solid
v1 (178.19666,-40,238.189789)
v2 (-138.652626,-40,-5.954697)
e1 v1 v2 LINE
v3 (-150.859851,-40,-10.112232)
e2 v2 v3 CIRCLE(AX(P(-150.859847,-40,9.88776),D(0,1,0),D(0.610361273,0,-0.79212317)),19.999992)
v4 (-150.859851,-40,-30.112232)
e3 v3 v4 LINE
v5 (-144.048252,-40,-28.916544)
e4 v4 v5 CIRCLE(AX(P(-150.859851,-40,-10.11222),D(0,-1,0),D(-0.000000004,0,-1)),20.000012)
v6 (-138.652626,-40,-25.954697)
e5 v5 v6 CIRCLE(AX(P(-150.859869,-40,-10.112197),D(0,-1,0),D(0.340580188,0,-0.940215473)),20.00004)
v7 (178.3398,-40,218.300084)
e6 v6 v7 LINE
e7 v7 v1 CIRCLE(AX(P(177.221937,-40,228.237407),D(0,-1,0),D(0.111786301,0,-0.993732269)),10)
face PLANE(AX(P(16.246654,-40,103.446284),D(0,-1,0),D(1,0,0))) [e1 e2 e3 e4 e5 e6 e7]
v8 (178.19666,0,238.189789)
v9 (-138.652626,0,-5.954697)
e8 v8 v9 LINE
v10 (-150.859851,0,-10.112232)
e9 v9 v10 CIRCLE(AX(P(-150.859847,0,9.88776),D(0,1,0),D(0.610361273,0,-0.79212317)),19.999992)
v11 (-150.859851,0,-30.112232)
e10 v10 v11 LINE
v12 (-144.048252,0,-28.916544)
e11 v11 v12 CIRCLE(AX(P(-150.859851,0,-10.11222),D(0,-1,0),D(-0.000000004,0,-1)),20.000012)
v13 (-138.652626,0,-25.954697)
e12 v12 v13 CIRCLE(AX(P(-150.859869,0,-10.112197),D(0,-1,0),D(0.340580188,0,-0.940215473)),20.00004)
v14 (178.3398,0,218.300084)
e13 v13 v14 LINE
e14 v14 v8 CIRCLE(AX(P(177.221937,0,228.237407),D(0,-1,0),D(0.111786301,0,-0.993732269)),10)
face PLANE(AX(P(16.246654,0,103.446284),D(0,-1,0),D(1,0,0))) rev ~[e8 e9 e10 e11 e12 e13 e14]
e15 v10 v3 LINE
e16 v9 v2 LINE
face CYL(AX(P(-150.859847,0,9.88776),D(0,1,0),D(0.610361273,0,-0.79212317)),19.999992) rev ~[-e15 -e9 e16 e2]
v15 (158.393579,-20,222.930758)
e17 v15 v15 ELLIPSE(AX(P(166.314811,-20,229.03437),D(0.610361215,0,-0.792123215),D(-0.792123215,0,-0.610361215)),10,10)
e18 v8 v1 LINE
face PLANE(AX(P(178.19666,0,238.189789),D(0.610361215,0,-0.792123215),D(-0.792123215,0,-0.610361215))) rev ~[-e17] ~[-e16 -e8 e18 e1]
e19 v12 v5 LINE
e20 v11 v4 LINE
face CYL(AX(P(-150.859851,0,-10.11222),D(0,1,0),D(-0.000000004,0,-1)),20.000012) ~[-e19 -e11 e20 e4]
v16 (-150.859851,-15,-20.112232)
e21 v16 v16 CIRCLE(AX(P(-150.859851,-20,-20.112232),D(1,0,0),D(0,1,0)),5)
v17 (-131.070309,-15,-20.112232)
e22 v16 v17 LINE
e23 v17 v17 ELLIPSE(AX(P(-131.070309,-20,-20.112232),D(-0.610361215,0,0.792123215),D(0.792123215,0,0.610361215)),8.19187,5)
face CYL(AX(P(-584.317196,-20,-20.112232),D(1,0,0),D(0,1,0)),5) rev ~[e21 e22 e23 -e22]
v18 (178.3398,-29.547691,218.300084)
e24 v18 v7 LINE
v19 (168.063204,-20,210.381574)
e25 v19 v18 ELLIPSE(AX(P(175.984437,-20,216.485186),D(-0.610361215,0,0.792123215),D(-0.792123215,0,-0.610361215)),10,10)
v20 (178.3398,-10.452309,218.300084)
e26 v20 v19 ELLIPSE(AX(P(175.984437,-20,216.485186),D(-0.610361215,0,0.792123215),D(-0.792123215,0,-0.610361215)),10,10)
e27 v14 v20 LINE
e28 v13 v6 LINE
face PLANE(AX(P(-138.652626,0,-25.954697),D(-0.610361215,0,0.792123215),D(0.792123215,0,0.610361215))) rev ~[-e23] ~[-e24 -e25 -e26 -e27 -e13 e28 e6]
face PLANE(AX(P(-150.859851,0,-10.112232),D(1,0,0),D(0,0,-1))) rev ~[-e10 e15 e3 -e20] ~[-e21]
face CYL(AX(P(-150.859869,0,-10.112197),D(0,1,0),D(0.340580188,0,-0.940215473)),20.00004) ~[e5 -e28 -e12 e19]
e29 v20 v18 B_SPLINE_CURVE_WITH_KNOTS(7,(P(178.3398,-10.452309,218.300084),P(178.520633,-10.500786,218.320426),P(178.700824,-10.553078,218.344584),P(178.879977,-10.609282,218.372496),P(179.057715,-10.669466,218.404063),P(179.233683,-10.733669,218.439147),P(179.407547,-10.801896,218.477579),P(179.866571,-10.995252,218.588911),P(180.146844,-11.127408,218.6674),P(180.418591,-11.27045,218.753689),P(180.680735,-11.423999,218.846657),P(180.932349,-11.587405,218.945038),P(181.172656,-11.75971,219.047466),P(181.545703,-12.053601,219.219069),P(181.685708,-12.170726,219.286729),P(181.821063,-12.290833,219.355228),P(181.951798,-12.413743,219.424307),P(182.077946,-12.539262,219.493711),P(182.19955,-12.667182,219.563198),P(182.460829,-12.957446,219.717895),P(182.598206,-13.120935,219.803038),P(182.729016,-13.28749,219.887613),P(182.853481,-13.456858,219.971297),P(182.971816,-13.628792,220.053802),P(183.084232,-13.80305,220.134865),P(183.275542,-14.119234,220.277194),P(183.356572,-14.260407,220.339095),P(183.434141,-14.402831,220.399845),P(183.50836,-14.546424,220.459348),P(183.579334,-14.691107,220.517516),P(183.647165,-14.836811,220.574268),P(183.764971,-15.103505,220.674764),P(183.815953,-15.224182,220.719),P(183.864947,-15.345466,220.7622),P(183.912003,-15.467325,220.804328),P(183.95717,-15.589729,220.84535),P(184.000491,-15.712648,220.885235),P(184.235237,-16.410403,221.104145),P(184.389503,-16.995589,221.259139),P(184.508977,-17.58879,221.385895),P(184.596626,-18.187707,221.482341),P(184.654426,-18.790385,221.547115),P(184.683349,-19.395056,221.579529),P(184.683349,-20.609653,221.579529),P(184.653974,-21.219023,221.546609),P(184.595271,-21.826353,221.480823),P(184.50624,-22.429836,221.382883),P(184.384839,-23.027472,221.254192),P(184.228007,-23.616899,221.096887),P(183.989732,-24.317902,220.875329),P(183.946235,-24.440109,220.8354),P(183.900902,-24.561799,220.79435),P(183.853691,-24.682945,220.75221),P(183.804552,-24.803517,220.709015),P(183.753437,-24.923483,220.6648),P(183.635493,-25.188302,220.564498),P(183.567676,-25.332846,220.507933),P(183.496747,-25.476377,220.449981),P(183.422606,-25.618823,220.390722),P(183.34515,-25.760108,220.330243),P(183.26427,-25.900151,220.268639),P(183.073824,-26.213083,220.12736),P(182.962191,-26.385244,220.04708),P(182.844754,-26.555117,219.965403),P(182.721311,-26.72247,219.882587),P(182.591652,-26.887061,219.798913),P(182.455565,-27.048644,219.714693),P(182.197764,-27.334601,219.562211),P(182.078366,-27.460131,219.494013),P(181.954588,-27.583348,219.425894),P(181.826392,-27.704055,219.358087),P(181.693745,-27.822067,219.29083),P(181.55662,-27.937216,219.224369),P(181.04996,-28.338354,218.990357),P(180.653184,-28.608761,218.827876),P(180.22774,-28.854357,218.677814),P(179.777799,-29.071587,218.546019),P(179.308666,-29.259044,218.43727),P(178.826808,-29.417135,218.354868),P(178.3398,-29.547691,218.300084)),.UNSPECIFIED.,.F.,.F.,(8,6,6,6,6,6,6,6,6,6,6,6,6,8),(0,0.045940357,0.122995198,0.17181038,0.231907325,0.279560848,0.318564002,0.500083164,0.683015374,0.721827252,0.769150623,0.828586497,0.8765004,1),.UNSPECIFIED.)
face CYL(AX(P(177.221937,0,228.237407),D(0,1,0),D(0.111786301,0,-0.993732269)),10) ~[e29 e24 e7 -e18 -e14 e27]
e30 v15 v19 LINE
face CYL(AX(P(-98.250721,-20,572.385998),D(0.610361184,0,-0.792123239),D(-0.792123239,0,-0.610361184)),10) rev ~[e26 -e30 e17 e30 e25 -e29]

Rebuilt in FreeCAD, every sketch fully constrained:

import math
import FreeCAD as App
import Part
import Sketcher
from FreeCAD import Vector

doc = App.newDocument("Part")
body = doc.addObject("PartDesign::Body", "Body")

sketch1 = body.newObject("Sketcher::SketchObject", "Sketch")
sketch1.AttachmentSupport = (doc.getObject("XZ_Plane"), [""])
sketch1.MapMode = "FlatFace"
sketch1.addGeometry(Part.ArcOfCircle(Part.Circle(Vector(-150.859847, 9.88776, 0), Vector(0, 0, 1), 19.999992), math.radians(-90.000012), math.radians(-52.38437)), False)
sketch1.addGeometry(Part.LineSegment(Vector(-150.859851, -10.112232, 0), Vector(-150.859851, -30.112232, 0)), False)
sketch1.addGeometry(Part.ArcOfCircle(Part.Circle(Vector(-150.859851, -10.11222, 0), Vector(0, 0, 1), 20.000012), math.radians(-90), math.radians(-70.087801)), False)
sketch1.addGeometry(Part.ArcOfCircle(Part.Circle(Vector(-150.859869, -10.112197, 0), Vector(0, 0, 1), 20.00004), math.radians(-70.087774), math.radians(-52.384393)), False)
sketch1.addGeometry(Part.LineSegment(Vector(-138.652626, -25.954697, 0), Vector(178.3398, 218.300084, 0)), False)
sketch1.addGeometry(Part.ArcOfCircle(Part.Circle(Vector(177.221937, 228.237407, 0), Vector(0, 0, 1), 10), math.radians(-83.581702), math.radians(84.406367)), False)
sketch1.addGeometry(Part.LineSegment(Vector(178.19666, 238.189789, 0), Vector(-138.652626, -5.954697, 0)), False)
sketch1.addConstraint(Sketcher.Constraint("Coincident", 0, 1, 1, 1))
sketch1.addConstraint(Sketcher.Constraint("Coincident", 1, 2, 2, 1))
sketch1.addConstraint(Sketcher.Constraint("Coincident", 2, 2, 3, 1))
sketch1.addConstraint(Sketcher.Constraint("Coincident", 3, 2, 4, 1))
sketch1.addConstraint(Sketcher.Constraint("Coincident", 4, 2, 5, 1))
sketch1.addConstraint(Sketcher.Constraint("Coincident", 5, 2, 6, 1))
sketch1.addConstraint(Sketcher.Constraint("Coincident", 6, 2, 0, 2))
sketch1.addConstraint(Sketcher.Constraint("Vertical", 1))
sketch1.addConstraint(Sketcher.Constraint("Radius", 5, 10.0))
sketch1.addConstraint(Sketcher.Constraint("DistanceY", 1, 2, 1, 1, 20.0))
sketch1.addConstraint(Sketcher.Constraint("Distance", 6, 400.0))
sketch1.addConstraint(Sketcher.Constraint("DistanceY", 3, 2, 6, 2, 20.0))
sketch1.addConstraint(Sketcher.Constraint("Radius", 3, 20.00004))
sketch1.addConstraint(Sketcher.Constraint("Radius", 0, 19.999992))
sketch1.addConstraint(Sketcher.Constraint("Radius", 2, 20.000012))
sketch1.addConstraint(Sketcher.Constraint("DistanceX", -1, 1, 4, 2, 178.3398))
sketch1.addConstraint(Sketcher.Constraint("DistanceX", 1, 2, 2, 2, 6.811599))
sketch1.addConstraint(Sketcher.Constraint("DistanceX", 2, 3, 2, 2, 6.811599))
sketch1.addConstraint(Sketcher.Constraint("DistanceY", 3, 2, 3, 3, 15.8425))
sketch1.addConstraint(Sketcher.Constraint("DistanceY", -1, 1, 0, 3, 9.88776))
sketch1.addConstraint(Sketcher.Constraint("DistanceX", 2, 3, -1, 1, 150.859851))
sketch1.addConstraint(Sketcher.Constraint("DistanceX", 3, 3, -1, 1, 150.859869))
sketch1.addConstraint(Sketcher.Constraint("DistanceX", -1, 1, 5, 2, 178.19666))
sketch1.addConstraint(Sketcher.Constraint("DistanceY", -1, 1, 5, 2, 238.189789))
sketch1.addConstraint(Sketcher.Constraint("DistanceY", 0, 1, 5, 3, 238.349639))
pad1 = body.newObject("PartDesign::Pad", "Pad")
pad1.Profile = sketch1
pad1.Length = 40

sketch2 = body.newObject("Sketcher::SketchObject", "Sketch001")
sketch2.AttachmentSupport = (doc.getObject("YZ_Plane"), [""])
sketch2.MapMode = "FlatFace"
sketch2.AttachmentOffset = App.Placement(Vector(0, 0, -150.859851), App.Rotation())
sketch2.addGeometry(Part.Circle(Vector(-20, -20.112232, 0), Vector(0, 0, 1), 5), False)
sketch2.addConstraint(Sketcher.Constraint("Diameter", 0, 10.0))
sketch2.addConstraint(Sketcher.Constraint("DistanceX", 0, 3, -1, 1, 20.0))
sketch2.addConstraint(Sketcher.Constraint("DistanceY", 0, 3, -1, 1, 20.112232))
doc.recompute()
hole = body.newObject("PartDesign::Hole", "Hole")
hole.Profile = sketch2
hole.ThreadType = "None"
hole.Diameter = 10
hole.DepthType = "ThroughAll"
hole.Reversed = True

sketch3 = body.newObject("Sketcher::SketchObject", "Sketch002")
sketch3.Placement = App.Placement(Vector(-48.774775, 0, 63.299623), App.Rotation(Vector(0.792123239, 0, 0.610361184), Vector(0, 1.000000001, 0), Vector(-0.610361184, 0, 0.792123239), "ZXY"))
sketch3.addGeometry(Part.Circle(Vector(271.535517, -20, 0), Vector(0, 0, 1), 10), False)
sketch3.addConstraint(Sketcher.Constraint("Diameter", 0, 20.0))
sketch3.addConstraint(Sketcher.Constraint("DistanceY", 0, 3, -1, 1, 20.0))
sketch3.addConstraint(Sketcher.Constraint("DistanceX", -1, 1, 0, 3, 271.535517))
doc.recompute()
hole2 = body.newObject("PartDesign::Hole", "Hole001")
hole2.Profile = sketch3
hole2.ThreadType = "None"
hole2.Diameter = 20
hole2.DepthType = "ThroughAll"

doc.recompute()
